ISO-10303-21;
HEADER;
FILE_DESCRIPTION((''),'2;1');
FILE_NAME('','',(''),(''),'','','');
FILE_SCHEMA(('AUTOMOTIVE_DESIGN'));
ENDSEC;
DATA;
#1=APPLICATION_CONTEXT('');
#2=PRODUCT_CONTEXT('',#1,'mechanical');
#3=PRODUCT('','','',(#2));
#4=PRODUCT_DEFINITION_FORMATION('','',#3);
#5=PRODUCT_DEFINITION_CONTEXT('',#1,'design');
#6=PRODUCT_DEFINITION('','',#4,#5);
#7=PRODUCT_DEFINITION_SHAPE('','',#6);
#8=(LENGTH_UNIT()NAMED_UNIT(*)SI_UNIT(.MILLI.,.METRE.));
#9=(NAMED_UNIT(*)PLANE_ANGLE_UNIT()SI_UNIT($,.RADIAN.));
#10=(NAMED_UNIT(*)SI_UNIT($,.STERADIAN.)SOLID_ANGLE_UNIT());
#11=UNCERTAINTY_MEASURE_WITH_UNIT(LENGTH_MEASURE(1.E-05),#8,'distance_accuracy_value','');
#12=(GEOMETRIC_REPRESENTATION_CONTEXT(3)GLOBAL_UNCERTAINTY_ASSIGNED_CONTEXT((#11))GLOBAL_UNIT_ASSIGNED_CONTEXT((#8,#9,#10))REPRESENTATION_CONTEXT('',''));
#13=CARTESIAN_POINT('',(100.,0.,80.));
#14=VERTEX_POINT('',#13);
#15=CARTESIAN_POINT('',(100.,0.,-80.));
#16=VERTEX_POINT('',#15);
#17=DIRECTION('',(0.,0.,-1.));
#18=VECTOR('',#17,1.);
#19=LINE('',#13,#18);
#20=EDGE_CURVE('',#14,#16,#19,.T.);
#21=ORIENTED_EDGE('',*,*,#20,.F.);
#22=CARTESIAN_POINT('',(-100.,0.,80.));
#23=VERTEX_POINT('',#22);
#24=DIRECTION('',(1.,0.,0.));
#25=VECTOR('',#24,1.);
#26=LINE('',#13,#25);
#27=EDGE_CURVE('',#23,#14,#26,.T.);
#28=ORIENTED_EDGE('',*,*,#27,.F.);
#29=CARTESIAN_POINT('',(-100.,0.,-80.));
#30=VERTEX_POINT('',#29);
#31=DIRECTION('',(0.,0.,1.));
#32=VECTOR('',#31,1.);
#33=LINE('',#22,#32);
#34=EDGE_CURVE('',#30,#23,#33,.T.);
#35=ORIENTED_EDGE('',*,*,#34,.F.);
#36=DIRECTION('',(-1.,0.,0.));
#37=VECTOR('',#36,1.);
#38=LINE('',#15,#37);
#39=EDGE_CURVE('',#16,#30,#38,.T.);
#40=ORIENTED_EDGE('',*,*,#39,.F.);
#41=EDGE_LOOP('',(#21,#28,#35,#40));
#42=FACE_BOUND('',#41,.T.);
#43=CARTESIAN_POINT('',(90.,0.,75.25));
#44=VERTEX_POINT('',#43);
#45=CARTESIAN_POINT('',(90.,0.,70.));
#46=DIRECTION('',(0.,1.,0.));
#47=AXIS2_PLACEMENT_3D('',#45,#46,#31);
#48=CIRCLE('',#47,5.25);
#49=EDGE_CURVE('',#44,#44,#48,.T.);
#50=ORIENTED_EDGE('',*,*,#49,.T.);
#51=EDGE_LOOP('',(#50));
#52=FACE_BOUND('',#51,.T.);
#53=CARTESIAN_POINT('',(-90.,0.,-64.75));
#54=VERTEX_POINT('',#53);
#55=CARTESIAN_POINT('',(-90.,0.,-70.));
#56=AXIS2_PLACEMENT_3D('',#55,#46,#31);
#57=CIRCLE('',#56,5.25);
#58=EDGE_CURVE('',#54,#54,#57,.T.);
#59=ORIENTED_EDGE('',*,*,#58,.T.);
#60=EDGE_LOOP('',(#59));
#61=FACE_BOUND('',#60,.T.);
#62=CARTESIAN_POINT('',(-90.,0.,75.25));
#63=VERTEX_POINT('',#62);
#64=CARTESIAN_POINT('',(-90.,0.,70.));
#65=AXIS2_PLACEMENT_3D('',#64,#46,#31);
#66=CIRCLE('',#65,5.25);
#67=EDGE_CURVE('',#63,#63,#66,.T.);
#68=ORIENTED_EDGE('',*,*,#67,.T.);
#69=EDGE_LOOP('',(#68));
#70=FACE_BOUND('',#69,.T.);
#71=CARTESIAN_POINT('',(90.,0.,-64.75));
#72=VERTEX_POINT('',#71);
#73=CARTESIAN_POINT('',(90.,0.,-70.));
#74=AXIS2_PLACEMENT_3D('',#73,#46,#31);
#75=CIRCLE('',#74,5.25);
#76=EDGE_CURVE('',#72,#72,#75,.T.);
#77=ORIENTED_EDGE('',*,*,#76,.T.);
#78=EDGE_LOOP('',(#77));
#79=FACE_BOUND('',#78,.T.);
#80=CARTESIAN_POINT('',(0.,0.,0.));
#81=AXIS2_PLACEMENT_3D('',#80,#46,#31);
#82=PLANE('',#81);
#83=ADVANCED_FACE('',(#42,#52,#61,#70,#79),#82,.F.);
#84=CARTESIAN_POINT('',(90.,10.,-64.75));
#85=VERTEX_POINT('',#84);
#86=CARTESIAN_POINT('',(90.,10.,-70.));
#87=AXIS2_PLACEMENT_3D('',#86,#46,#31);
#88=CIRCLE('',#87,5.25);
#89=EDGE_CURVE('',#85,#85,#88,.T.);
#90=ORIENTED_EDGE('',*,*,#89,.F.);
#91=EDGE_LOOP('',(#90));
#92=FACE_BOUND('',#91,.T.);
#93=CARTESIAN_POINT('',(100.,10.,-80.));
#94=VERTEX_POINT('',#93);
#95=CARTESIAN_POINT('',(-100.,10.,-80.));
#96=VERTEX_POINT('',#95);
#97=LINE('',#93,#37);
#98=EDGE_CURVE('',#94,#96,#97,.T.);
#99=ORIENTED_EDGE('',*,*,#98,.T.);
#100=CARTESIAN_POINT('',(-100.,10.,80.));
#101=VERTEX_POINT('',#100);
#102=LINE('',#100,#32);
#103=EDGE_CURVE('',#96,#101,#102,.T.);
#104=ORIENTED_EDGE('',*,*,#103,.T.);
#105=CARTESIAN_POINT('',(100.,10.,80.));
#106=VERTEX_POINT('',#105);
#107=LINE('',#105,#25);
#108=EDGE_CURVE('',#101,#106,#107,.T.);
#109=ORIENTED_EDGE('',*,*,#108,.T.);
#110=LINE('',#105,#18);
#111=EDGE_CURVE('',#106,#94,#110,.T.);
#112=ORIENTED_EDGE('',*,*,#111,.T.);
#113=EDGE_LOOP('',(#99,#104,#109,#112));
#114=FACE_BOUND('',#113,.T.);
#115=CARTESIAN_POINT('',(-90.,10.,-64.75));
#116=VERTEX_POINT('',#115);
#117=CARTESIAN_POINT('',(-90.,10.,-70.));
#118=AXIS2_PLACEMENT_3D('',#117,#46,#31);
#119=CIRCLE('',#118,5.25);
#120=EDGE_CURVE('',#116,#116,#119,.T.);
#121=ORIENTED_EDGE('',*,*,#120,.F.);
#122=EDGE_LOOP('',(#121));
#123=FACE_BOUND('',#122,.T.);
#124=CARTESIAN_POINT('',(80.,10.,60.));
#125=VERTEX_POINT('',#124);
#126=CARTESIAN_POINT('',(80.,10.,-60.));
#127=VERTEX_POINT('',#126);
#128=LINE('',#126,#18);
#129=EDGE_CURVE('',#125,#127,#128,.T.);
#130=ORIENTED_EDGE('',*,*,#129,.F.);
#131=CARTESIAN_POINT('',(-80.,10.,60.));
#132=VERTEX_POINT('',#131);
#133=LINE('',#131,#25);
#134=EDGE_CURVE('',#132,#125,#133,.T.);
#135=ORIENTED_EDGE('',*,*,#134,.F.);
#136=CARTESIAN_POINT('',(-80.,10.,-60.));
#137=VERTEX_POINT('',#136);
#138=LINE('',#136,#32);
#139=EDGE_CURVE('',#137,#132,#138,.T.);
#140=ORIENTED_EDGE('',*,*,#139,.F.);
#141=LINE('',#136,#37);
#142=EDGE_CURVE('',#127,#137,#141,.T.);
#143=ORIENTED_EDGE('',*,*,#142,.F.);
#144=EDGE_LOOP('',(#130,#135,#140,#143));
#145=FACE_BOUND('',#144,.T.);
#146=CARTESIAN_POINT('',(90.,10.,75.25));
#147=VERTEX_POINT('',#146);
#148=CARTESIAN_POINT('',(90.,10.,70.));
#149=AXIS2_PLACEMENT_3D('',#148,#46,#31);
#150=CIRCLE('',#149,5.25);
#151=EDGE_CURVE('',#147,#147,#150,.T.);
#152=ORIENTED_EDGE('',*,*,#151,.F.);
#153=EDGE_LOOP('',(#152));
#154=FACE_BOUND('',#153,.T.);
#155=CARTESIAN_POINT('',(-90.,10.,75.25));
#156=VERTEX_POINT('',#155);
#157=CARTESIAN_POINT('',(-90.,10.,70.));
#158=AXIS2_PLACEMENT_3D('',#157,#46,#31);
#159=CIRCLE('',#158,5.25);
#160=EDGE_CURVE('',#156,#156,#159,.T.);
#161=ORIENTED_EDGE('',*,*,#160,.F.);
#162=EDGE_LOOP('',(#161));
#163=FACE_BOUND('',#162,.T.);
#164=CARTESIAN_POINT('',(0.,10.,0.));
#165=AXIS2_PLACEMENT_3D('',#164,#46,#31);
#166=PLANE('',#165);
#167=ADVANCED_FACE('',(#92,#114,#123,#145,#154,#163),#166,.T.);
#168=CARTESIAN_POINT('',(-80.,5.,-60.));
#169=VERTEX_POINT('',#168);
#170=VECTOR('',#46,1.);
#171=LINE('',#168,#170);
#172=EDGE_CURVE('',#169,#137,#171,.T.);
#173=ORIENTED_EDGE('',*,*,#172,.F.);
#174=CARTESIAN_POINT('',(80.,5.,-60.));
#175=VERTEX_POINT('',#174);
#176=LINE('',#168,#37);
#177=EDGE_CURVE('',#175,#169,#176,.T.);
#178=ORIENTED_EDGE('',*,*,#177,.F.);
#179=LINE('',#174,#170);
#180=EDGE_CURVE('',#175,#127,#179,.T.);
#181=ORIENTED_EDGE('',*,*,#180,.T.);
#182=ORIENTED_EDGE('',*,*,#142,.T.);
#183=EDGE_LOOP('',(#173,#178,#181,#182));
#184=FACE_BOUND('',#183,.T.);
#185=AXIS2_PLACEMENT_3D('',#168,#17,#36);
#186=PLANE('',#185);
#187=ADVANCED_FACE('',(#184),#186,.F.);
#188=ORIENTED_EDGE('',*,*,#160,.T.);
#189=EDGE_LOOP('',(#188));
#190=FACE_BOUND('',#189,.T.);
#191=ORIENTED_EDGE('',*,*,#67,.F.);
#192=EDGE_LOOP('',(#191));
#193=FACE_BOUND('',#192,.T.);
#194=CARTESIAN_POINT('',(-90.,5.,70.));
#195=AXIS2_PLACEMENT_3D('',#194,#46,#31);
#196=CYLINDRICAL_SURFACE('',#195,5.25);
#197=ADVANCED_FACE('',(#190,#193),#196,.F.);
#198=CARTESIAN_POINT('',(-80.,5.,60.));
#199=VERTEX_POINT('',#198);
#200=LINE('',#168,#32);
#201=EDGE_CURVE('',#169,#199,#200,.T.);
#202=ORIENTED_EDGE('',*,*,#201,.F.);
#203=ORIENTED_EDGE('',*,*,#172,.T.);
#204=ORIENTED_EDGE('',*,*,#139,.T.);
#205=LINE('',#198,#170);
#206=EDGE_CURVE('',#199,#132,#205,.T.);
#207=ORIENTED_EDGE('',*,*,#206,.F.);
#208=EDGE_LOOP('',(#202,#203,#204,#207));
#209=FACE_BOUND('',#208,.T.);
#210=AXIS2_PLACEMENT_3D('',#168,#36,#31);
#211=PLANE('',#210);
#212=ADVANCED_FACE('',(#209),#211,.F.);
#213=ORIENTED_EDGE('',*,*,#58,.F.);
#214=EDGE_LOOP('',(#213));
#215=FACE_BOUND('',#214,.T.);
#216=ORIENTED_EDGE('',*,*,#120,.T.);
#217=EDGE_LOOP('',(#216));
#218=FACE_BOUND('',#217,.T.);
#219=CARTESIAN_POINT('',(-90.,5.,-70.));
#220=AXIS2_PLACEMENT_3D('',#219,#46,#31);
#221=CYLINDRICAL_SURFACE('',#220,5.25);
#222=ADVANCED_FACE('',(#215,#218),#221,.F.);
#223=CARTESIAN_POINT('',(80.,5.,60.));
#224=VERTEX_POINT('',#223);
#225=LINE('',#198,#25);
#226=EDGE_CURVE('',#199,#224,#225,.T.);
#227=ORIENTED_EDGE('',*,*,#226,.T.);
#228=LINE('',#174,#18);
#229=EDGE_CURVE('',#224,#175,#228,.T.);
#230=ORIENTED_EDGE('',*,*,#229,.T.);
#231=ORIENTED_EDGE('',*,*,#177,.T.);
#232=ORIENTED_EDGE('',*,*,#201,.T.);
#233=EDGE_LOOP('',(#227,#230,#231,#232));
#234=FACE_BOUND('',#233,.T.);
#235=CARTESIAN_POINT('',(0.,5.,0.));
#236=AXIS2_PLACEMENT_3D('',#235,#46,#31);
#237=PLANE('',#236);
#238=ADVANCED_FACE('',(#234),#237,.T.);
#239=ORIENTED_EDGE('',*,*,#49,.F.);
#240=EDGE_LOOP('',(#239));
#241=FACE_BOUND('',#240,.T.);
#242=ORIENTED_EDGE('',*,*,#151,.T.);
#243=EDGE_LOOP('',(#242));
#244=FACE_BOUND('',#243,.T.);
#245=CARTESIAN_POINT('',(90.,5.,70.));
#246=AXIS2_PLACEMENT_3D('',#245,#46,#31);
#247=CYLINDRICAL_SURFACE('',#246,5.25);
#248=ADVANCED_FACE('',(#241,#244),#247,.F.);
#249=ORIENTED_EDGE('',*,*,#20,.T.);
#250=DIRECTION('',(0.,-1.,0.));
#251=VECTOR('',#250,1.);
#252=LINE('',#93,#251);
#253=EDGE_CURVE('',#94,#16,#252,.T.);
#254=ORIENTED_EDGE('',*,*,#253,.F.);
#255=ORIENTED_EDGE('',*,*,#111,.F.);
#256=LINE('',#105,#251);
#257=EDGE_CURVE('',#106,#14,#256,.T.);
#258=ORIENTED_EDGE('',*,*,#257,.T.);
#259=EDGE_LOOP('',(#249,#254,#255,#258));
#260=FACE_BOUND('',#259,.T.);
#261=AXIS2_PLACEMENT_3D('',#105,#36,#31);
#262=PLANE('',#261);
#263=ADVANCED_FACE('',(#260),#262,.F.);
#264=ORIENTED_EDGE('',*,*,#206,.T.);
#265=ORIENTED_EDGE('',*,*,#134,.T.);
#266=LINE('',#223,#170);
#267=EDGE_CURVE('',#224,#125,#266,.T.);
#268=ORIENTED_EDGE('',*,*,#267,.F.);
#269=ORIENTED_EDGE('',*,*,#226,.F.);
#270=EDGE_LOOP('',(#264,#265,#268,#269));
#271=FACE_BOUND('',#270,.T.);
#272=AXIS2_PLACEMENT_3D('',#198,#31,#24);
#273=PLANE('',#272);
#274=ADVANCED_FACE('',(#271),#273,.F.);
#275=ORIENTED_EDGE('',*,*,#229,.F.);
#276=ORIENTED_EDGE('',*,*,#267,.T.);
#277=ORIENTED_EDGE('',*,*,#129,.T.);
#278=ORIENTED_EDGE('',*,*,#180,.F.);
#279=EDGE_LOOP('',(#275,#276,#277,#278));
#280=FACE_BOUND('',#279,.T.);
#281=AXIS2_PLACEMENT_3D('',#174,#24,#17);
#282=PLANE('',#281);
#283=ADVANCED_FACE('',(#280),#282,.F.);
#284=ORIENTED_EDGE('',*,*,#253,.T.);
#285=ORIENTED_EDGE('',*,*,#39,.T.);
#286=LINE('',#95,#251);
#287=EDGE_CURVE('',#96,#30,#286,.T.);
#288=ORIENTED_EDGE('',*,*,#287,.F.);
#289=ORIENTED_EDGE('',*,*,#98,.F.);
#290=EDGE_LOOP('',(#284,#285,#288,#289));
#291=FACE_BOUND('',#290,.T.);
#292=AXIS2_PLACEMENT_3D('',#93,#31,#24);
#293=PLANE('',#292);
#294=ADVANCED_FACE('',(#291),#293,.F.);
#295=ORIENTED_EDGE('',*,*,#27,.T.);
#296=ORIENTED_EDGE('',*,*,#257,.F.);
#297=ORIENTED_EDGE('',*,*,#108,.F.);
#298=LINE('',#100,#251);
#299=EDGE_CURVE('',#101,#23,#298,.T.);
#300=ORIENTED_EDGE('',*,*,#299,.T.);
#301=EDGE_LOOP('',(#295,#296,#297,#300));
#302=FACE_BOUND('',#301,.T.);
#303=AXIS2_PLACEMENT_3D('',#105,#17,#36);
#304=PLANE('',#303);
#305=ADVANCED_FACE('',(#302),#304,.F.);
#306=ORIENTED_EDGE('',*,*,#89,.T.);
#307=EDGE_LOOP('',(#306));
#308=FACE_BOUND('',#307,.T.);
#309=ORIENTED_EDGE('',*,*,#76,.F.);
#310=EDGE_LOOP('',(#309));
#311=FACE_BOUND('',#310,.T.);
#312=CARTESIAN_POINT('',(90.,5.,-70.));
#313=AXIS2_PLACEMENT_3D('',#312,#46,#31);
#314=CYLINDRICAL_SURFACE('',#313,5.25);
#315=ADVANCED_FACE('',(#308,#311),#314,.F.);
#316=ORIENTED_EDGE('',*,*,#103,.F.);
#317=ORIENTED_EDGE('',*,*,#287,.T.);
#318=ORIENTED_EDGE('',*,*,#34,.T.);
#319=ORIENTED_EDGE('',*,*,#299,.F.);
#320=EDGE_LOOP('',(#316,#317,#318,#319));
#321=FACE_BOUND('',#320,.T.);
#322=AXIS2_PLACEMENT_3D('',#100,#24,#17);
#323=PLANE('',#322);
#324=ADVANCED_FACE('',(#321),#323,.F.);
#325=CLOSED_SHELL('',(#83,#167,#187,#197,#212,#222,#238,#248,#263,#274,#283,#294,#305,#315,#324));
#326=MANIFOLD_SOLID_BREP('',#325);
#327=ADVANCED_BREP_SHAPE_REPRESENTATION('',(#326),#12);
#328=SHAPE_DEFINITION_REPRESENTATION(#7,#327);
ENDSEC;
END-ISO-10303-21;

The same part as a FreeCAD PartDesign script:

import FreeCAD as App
import Part
import Sketcher

V = App.Vector
Q = App.Units.Quantity


def add_polygon(sketch, points):
    """Adds a closed chain of lines whose ends are joined by coincident constraints."""
    first, n = sketch.GeometryCount, len(points)
    for a, b in zip(points, points[1:] + points[:1]):
        sketch.addGeometry(Part.LineSegment(App.Vector(*a, 0), App.Vector(*b, 0)), False)
    for i in range(n):
        sketch.addConstraint(Sketcher.Constraint("Coincident", first + i, 2, first + (i + 1) % n, 1))

doc = App.newDocument("Part")
body = doc.addObject("PartDesign::Body", "Body")

sketch1 = doc.addObject("Sketcher::SketchObject", "Sketch")
body.addObject(sketch1)
sketch1.AttachmentSupport = (doc.XZ_Plane, [""])
sketch1.MapMode = "FlatFace"
add_polygon(sketch1, [(-100, -80), (-100, 80), (100, 80), (100, -80)])
sketch1.addConstraint(Sketcher.Constraint("Vertical", 0))
sketch1.addConstraint(Sketcher.Constraint("Horizontal", 1))
sketch1.addConstraint(Sketcher.Constraint("Vertical", 2))
sketch1.addConstraint(Sketcher.Constraint("Horizontal", 3))
sketch1.addConstraint(Sketcher.Constraint("Symmetric", 0, 2, 2, 2, -1, 1))
sketch1.addConstraint(Sketcher.Constraint("DistanceX", 1, 1, 1, 2, Q("200 mm")))
sketch1.addConstraint(Sketcher.Constraint("DistanceY", 0, 1, 0, 2, Q("160 mm")))
pad1 = doc.addObject("PartDesign::Pad", "Pad")
body.addObject(pad1)
pad1.Profile = sketch1
pad1.Length = 10
pad1.Reversed = True

sketch2 = doc.addObject("Sketcher::SketchObject", "Sketch001")
body.addObject(sketch2)
sketch2.AttachmentSupport = (doc.XZ_Plane, [""])
sketch2.MapMode = "FlatFace"
sketch2.AttachmentOffset = App.Placement(V(0, 0, -10), App.Rotation())
sketch2.addGeometry(Part.Circle(V(-90, -70, 0), V(0, 0, 1), 5), False)
sketch2.addGeometry(Part.Circle(V(90, 70, 0), V(0, 0, 1), 5), False)
sketch2.addGeometry(Part.Circle(V(90, -70, 0), V(0, 0, 1), 5), False)
sketch2.addGeometry(Part.Circle(V(-90, 70, 0), V(0, 0, 1), 5), False)
add_polygon(sketch2, [(-80, -60), (-80, 60), (80, 60), (80, -60)])
sketch2.addConstraint(Sketcher.Constraint("Vertical", 4))
sketch2.addConstraint(Sketcher.Constraint("Horizontal", 5))
sketch2.addConstraint(Sketcher.Constraint("Vertical", 6))
sketch2.addConstraint(Sketcher.Constraint("Horizontal", 7))
sketch2.addConstraint(Sketcher.Constraint("Equal", 0, 1))
sketch2.addConstraint(Sketcher.Constraint("Equal", 1, 2))
sketch2.addConstraint(Sketcher.Constraint("Equal", 2, 3))
sketch2.addConstraint(Sketcher.Constraint("Symmetric", 0, 3, 1, 3, -1, 1))
sketch2.addConstraint(Sketcher.Constraint("Symmetric", 2, 3, 3, 3, -1, 1))
sketch2.addConstraint(Sketcher.Constraint("Symmetric", 4, 2, 6, 2, -1, 1))
sketch2.addConstraint(Sketcher.Constraint("Symmetric", 0, 3, 2, 3, -2))
sketch2.addConstraint(Sketcher.Constraint("Diameter", 0, Q("10.5 mm")))
sketch2.addConstraint(Sketcher.Constraint("DistanceX", 5, 1, 5, 2, Q("160 mm")))
sketch2.addConstraint(Sketcher.Constraint("DistanceY", 4, 1, 4, 2, Q("120 mm")))
sketch2.addConstraint(Sketcher.Constraint("DistanceX", 0, 3, -1, 1, Q("90 mm")))
sketch2.addConstraint(Sketcher.Constraint("DistanceY", 0, 3, -1, 1, Q("70 mm")))
pocket1 = doc.addObject("PartDesign::Pocket", "Pocket")
body.addObject(pocket1)
pocket1.Profile = sketch2
pocket1.Length = 5
pocket1.Reversed = True

sketch3 = doc.addObject("Sketcher::SketchObject", "Sketch002")
body.addObject(sketch3)
sketch3.AttachmentSupport = (doc.XZ_Plane, [""])
sketch3.MapMode = "FlatFace"
sketch3.AttachmentOffset = App.Placement(V(0, 0, -5), App.Rotation())
sketch3.addGeometry(Part.Circle(V(-90, -70, 0), V(0, 0, 1), 5), False)
sketch3.addGeometry(Part.Circle(V(90, -70, 0), V(0, 0, 1), 5), False)
sketch3.addGeometry(Part.Circle(V(90, 70, 0), V(0, 0, 1), 5), False)
sketch3.addGeometry(Part.Circle(V(-90, 70, 0), V(0, 0, 1), 5), False)
sketch3.addConstraint(Sketcher.Constraint("Equal", 0, 1))
sketch3.addConstraint(Sketcher.Constraint("Equal", 1, 2))
sketch3.addConstraint(Sketcher.Constraint("Equal", 2, 3))
sketch3.addConstraint(Sketcher.Constraint("Symmetric", 0, 3, 2, 3, -1, 1))
sketch3.addConstraint(Sketcher.Constraint("Symmetric", 1, 3, 3, 3, -1, 1))
sketch3.addConstraint(Sketcher.Constraint("Symmetric", 0, 3, 1, 3, -2))
sketch3.addConstraint(Sketcher.Constraint("Diameter", 0, Q("10.5 mm")))
sketch3.addConstraint(Sketcher.Constraint("DistanceX", 0, 3, -1, 1, Q("90 mm")))
sketch3.addConstraint(Sketcher.Constraint("DistanceY", 0, 3, -1, 1, Q("70 mm")))
pocket2 = doc.addObject("PartDesign::Pocket", "Pocket001")
body.addObject(pocket2)
pocket2.Profile = sketch3
pocket2.Type = "ThroughAll"
pocket2.Reversed = True

doc.recompute()
